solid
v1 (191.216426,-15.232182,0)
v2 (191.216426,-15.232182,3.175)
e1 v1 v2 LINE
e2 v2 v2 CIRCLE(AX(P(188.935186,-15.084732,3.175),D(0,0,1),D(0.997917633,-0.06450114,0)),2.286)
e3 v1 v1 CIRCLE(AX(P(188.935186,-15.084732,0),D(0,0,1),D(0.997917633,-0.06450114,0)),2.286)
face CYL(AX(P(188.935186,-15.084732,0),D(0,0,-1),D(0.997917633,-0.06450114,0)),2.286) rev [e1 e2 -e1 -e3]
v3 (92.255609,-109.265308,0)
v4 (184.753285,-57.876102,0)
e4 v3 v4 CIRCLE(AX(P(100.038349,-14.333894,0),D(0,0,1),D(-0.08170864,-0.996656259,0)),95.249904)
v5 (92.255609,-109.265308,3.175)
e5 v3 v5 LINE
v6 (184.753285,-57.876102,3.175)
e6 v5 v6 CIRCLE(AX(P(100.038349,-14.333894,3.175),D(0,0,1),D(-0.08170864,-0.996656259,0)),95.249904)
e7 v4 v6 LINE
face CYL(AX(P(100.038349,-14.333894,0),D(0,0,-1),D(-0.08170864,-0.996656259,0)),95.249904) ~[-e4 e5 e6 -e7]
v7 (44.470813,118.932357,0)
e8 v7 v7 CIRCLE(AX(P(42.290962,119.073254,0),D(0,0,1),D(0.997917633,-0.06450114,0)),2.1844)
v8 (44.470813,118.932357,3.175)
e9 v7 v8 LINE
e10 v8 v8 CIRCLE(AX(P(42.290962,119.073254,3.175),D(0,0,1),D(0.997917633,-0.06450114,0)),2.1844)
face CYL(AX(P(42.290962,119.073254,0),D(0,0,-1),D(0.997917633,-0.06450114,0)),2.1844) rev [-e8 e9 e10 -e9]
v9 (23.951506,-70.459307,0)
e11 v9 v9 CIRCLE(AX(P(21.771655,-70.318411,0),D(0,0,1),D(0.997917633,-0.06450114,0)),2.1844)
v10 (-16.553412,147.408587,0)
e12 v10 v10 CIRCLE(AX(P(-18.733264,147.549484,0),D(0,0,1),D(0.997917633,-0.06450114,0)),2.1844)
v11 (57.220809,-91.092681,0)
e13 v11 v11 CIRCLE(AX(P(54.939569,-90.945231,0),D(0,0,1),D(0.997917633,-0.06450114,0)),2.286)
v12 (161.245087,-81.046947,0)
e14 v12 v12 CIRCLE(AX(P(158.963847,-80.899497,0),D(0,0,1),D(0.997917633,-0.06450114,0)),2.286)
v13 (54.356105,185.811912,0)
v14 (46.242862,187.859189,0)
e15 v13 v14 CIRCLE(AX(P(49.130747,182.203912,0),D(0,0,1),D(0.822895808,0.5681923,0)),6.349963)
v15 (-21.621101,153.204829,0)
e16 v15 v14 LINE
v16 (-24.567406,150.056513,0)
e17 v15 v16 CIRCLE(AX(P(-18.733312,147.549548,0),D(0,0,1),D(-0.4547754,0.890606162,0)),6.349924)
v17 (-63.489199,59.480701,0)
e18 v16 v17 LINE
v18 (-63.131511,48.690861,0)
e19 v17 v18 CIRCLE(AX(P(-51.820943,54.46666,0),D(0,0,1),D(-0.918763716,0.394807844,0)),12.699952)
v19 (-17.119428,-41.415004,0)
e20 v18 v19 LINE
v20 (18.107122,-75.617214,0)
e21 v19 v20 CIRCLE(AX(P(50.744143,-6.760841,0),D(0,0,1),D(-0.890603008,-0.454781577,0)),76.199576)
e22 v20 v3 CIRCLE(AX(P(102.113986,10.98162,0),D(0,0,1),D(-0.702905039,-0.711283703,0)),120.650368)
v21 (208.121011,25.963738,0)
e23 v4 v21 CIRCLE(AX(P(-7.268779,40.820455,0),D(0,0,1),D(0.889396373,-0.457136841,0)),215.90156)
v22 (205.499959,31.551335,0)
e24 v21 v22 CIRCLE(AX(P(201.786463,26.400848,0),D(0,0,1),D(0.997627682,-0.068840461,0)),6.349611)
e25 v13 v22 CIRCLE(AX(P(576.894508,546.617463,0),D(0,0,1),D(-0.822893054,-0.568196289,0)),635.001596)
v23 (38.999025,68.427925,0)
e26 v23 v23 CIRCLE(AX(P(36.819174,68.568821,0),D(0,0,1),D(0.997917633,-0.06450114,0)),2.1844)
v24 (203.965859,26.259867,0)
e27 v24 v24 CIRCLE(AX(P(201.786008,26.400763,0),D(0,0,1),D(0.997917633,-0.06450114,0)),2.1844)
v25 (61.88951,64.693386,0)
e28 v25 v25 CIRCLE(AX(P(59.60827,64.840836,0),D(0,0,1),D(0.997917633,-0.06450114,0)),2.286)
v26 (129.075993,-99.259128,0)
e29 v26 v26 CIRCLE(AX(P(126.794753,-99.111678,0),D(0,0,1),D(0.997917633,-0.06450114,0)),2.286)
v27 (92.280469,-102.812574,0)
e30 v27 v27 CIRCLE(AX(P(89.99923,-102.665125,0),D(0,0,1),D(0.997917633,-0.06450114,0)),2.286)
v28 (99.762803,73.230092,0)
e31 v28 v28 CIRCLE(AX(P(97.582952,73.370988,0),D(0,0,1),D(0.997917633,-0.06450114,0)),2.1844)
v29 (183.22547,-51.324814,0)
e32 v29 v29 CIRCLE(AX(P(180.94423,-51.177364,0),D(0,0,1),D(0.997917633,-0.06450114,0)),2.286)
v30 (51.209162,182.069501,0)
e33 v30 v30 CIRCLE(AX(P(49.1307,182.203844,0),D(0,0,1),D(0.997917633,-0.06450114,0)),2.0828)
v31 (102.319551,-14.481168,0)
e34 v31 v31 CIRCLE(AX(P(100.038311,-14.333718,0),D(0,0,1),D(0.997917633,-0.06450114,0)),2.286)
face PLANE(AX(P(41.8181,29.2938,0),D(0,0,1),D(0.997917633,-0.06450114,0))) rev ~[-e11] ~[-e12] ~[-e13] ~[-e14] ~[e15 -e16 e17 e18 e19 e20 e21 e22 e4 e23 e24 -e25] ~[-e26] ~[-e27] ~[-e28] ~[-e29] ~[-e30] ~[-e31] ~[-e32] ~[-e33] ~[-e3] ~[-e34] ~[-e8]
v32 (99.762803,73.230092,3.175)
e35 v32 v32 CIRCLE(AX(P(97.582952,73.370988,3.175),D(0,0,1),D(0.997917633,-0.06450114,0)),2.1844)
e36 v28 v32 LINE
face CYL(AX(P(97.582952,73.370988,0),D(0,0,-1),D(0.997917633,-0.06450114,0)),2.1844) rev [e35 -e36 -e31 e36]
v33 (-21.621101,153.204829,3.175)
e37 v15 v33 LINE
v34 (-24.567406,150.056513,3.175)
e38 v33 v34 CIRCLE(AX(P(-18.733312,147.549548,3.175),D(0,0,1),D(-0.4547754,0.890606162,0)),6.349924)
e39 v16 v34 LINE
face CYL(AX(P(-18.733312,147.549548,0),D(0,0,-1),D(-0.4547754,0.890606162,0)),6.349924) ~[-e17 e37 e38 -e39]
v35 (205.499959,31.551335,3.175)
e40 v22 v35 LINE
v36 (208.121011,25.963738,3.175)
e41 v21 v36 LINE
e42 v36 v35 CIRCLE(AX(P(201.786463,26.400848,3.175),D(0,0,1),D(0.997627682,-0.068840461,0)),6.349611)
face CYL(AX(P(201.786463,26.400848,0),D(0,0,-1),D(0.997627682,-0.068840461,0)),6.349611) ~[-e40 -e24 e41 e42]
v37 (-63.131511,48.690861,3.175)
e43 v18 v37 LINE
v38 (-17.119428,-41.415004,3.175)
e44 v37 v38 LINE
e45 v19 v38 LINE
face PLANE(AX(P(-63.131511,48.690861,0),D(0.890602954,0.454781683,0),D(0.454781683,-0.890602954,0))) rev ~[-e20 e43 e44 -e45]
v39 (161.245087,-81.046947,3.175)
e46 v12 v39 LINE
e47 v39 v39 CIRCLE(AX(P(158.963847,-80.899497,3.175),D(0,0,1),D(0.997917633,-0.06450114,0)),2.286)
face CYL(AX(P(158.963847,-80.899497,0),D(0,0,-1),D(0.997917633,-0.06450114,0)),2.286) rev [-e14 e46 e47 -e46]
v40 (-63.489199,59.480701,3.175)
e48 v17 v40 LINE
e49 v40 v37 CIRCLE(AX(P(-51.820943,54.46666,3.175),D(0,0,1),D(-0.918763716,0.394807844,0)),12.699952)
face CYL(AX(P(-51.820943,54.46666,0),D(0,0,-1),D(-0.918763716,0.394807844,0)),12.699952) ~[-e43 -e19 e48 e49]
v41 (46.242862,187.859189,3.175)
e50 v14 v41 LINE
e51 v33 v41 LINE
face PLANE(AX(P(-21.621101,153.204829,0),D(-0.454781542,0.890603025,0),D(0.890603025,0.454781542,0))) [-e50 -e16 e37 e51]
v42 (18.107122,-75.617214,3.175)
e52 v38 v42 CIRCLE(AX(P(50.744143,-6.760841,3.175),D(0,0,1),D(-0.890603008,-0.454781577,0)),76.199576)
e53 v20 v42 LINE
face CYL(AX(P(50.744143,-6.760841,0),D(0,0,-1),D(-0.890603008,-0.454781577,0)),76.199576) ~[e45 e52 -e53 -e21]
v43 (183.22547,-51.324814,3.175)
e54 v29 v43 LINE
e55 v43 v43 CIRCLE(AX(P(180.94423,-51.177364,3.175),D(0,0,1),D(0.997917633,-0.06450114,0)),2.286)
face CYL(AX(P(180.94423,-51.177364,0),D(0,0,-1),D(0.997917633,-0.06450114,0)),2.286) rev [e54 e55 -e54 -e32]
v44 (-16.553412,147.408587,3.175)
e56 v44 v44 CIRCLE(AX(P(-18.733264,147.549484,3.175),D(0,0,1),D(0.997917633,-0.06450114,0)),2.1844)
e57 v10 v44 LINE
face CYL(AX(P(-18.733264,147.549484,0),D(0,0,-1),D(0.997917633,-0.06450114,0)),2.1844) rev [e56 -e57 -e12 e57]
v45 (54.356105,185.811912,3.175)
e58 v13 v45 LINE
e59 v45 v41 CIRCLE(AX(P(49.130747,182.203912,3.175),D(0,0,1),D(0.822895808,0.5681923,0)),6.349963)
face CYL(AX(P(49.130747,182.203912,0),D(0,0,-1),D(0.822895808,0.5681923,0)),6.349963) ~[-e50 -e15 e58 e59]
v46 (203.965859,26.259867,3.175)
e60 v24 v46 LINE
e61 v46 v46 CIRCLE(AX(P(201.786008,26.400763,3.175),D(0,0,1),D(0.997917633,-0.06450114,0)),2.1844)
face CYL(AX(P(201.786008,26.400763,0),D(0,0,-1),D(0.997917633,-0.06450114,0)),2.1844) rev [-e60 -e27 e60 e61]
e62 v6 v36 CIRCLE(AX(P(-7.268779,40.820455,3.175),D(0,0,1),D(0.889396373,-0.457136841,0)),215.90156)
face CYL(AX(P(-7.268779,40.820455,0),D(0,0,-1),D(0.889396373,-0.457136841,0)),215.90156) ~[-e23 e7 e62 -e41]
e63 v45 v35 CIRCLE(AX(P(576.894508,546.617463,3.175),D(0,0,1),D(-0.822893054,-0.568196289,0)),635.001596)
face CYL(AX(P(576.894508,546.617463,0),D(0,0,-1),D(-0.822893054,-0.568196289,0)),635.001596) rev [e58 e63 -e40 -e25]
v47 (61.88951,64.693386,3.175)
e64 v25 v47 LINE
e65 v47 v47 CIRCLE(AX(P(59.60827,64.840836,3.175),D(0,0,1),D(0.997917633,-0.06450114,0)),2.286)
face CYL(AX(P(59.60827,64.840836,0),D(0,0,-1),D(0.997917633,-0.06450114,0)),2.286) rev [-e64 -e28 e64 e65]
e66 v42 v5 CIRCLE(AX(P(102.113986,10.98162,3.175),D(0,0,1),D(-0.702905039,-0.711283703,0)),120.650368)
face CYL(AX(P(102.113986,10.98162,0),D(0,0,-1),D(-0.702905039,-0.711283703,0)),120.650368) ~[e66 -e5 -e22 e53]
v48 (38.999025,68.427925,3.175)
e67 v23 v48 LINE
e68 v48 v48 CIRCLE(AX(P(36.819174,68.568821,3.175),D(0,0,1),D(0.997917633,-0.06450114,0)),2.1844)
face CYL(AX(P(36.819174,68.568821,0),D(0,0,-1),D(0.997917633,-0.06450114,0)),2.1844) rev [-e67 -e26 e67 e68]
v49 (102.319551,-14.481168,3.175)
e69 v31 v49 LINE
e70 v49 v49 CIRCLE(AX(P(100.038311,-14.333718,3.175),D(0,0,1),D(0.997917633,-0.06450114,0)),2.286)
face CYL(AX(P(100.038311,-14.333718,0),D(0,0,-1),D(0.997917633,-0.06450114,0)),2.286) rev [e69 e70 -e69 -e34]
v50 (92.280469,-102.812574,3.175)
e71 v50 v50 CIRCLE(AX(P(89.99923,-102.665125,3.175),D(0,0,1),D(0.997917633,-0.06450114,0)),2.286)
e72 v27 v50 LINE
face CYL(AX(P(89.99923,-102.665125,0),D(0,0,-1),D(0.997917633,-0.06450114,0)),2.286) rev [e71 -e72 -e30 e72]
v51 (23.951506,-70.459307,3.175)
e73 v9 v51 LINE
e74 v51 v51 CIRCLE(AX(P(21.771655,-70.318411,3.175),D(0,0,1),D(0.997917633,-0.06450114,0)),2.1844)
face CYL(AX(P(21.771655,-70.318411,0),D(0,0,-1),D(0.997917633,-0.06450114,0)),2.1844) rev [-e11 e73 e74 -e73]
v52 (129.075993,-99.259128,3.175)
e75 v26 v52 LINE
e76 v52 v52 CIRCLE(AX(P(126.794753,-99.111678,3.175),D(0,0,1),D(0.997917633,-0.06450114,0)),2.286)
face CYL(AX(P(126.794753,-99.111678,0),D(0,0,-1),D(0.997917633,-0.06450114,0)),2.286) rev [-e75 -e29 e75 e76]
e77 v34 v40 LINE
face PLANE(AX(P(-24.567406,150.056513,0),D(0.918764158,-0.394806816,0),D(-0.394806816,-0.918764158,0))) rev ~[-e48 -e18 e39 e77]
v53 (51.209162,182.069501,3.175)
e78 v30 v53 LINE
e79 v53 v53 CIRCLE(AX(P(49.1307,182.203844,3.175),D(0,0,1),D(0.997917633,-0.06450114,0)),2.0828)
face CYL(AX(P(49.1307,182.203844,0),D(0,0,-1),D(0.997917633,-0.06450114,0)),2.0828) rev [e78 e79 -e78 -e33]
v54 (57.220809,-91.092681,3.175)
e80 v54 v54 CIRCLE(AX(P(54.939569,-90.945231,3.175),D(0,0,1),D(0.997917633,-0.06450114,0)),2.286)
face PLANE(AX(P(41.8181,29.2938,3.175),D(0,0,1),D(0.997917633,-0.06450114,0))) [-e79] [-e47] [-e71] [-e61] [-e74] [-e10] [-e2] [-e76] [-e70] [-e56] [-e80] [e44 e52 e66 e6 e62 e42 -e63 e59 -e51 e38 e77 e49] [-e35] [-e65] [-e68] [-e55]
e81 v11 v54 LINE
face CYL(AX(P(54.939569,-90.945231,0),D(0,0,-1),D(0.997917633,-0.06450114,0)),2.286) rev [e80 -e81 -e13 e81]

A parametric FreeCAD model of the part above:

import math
import FreeCAD as App
import Part
import Sketcher

V = App.Vector
Q = App.Units.Quantity

doc = App.newDocument("Part")
body = doc.addObject("PartDesign::Body", "Body")

# Sketch on XY plane
sketch1 = body.newObject("Sketcher::SketchObject", "Sketch")
sketch1.AttachmentSupport = (doc.getObject("XY_Plane"), [""])
sketch1.MapMode = "FlatFace"
sketch1.addGeometry([
    Part.LineSegment(V(46.242862, 187.859189, 0), V(-21.621101, 153.204829, 0)),  # 0
    Part.ArcOfCircle(Part.Circle(V(-18.733264, 147.549484, 0), V(0, 0, 1), 6.350003), math.radians(117.050608), math.radians(156.745988)),  # 1
    Part.LineSegment(V(-24.567406, 150.056513, 0), V(-63.489199, 59.480701, 0)),  # 2
    Part.ArcOfCircle(Part.Circle(V(-51.820814, 54.466636, 0), V(0, 0, 1), 12.700081), math.radians(156.746139), math.radians(207.050996)),  # 3
    Part.LineSegment(V(-63.131511, 48.690861, 0), V(-17.119428, -41.415004, 0)),  # 4
    Part.ArcOfCircle(Part.Circle(V(50.744542, -6.760544, 0), V(0, 0, 1), 76.200066), math.radians(-152.949056), math.radians(-115.360516)),  # 5
    Part.ArcOfCircle(Part.Circle(V(102.113782, 10.981326, 0), V(0, 0, 1), 120.650016), math.radians(-134.129614), math.radians(-94.686795)),  # 6
    Part.ArcOfCircle(Part.Circle(V(100.038311, -14.333718, 0), V(0, 0, 1), 95.250002), math.radians(-94.686754), math.radians(-27.202568)),  # 7
    Part.ArcOfCircle(Part.Circle(V(-7.268779, 40.820455, 0), V(0, 0, 1), 215.90156), math.radians(-27.202507), math.radians(-3.945782)),  # 8
    Part.ArcOfCircle(Part.Circle(V(201.786008, 26.400763, 0), V(0, 0, 1), 6.350028), math.radians(-3.94634), math.radians(54.205545)),  # 9
    Part.ArcOfCircle(Part.Circle(V(576.894508, 546.617462, 0), V(0, 0, 1), 635.001596), math.radians(-145.375457), math.radians(-125.793936)),  # 10
    Part.ArcOfCircle(Part.Circle(V(49.1307, 182.203844, 0), V(0, 0, 1), 6.350041), math.radians(34.62453), math.radians(117.050608)),  # 11
    Part.Circle(V(21.771655, -70.318411, 0), V(0, 0, 1), 2.1844),  # 12
    Part.Circle(V(42.290962, 119.073254, 0), V(0, 0, 1), 2.1844),  # 13
    Part.Circle(V(49.1307, 182.203844, 0), V(0, 0, 1), 2.0828),  # 14
    Part.Circle(V(97.582952, 73.370988, 0), V(0, 0, 1), 2.1844),  # 15
    Part.Circle(V(54.939569, -90.945231, 0), V(0, 0, 1), 2.286),  # 16
    Part.Circle(V(89.99923, -102.665125, 0), V(0, 0, 1), 2.286),  # 17
    Part.Circle(V(126.794753, -99.111678, 0), V(0, 0, 1), 2.286),  # 18
    Part.Circle(V(158.963847, -80.899497, 0), V(0, 0, 1), 2.286),  # 19
    Part.Circle(V(180.94423, -51.177364, 0), V(0, 0, 1), 2.286),  # 20
    Part.Circle(V(100.038311, -14.333718, 0), V(0, 0, 1), 2.286),  # 21
    Part.Circle(V(188.935186, -15.084732, 0), V(0, 0, 1), 2.286),  # 22
    Part.Circle(V(201.786008, 26.400763, 0), V(0, 0, 1), 2.1844),  # 23
    Part.Circle(V(36.819174, 68.568821, 0), V(0, 0, 1), 2.1844),  # 24
    Part.Circle(V(59.60827, 64.840836, 0), V(0, 0, 1), 2.286),  # 25
    Part.Circle(V(-18.733264, 147.549484, 0), V(0, 0, 1), 2.1844),  # 26
], False)
sketch1.addConstraint([
    Sketcher.Constraint("Coincident", 0, 2, 1, 1),
    Sketcher.Constraint("Coincident", 1, 2, 2, 1),
    Sketcher.Constraint("Coincident", 2, 2, 3, 1),
    Sketcher.Constraint("Coincident", 3, 2, 4, 1),
    Sketcher.Constraint("Coincident", 4, 2, 5, 1),
    Sketcher.Constraint("Coincident", 5, 2, 6, 1),
    Sketcher.Constraint("Coincident", 6, 2, 7, 1),
    Sketcher.Constraint("Coincident", 7, 2, 8, 1),
    Sketcher.Constraint("Coincident", 8, 2, 9, 1),
    Sketcher.Constraint("Coincident", 9, 2, 10, 2),
    Sketcher.Constraint("Coincident", 10, 1, 11, 1),
    Sketcher.Constraint("Coincident", 11, 2, 0, 1),
    Sketcher.Constraint("Coincident", 14, 3, 11, 3),
    Sketcher.Constraint("Coincident", 21, 3, 7, 3),
    Sketcher.Constraint("Coincident", 23, 3, 9, 3),
    Sketcher.Constraint("Coincident", 26, 3, 1, 3),
    Sketcher.Constraint("Radius", 5, Q("3 in")),
    Sketcher.Constraint("Radius", 3, Q("0.5 in")),
    Sketcher.Constraint("Diameter", 16, Q("0.18 in")),
    Sketcher.Constraint("Diameter", 17, Q("0.18 in")),
    Sketcher.Constraint("Diameter", 18, Q("0.18 in")),
    Sketcher.Constraint("Diameter", 19, Q("0.18 in")),
    Sketcher.Constraint("Diameter", 20, Q("0.18 in")),
    Sketcher.Constraint("Diameter", 21, Q("0.18 in")),
    Sketcher.Constraint("Diameter", 22, Q("0.18 in")),
    Sketcher.Constraint("Diameter", 25, Q("0.18 in")),
    Sketcher.Constraint("Radius", 1, Q("0.25 in")),
    Sketcher.Constraint("Radius", 6, Q("4.75 in")),
    Sketcher.Constraint("Radius", 9, Q("0.25 in")),
    Sketcher.Constraint("Radius", 11, Q("0.25 in")),
    Sketcher.Constraint("Distance", 0, Q("3 in")),
    Sketcher.Constraint("Radius", 7, Q("3.75 in")),
    Sketcher.Constraint("Diameter", 12, Q("0.172 in")),
    Sketcher.Constraint("Diameter", 13, Q("0.172 in")),
    Sketcher.Constraint("Diameter", 14, Q("0.164 in")),
    Sketcher.Constraint("Diameter", 15, Q("0.172 in")),
    Sketcher.Constraint("Diameter", 23, Q("0.172 in")),
    Sketcher.Constraint("Diameter", 24, Q("0.172 in")),
    Sketcher.Constraint("Diameter", 26, Q("0.172 in")),
    Sketcher.Constraint("DistanceX", -1, 1, 10, 1, Q("2.14 in")),
    Sketcher.Constraint("Radius", 8, 215.9016),
    Sketcher.Constraint("Radius", 10, 635.0016),
    Sketcher.Constraint("DistanceY", 16, 3, 4, 2, Q("1.95 in")),
    Sketcher.Constraint("DistanceX", 7, 2, 8, 2, Q("0.92 in")),
    Sketcher.Constraint("DistanceX", -1, 1, 13, 3, Q("1.665 in")),
    Sketcher.Constraint("DistanceX", 4, 2, -1, 1, Q("0.674 in")),
    Sketcher.Constraint("DistanceX", 3, 3, 5, 3, Q("4.038 in")),
    Sketcher.Constraint("DistanceX", 8, 3, 5, 3, Q("2.284 in")),
    Sketcher.Constraint("DistanceX", 1, 2, 0, 2, Q("0.116 in")),
    Sketcher.Constraint("DistanceX", 3, 3, -1, 1, Q("2.0402 in")),
    Sketcher.Constraint("DistanceY", -1, 1, 8, 3, Q("1.6071 in")),
    Sketcher.Constraint("DistanceY", -1, 1, 9, 3, Q("1.0394 in")),
    Sketcher.Constraint("DistanceX", -1, 1, 20, 3, Q("7.1238 in")),
    Sketcher.Constraint("DistanceX", -1, 1, 22, 3, Q("7.4384 in")),
    Sketcher.Constraint("DistanceY", -1, 1, 25, 3, Q("2.5528 in")),
    Sketcher.Constraint("DistanceX", 3, 2, -1, 1, Q("2.4855 in")),
    Sketcher.Constraint("DistanceY", 4, 2, -1, 1, Q("1.6305 in")),
    Sketcher.Constraint("DistanceX", -1, 1, 6, 2, Q("3.6321 in")),
    Sketcher.Constraint("DistanceY", -1, 1, 8, 2, Q("1.0222 in")),
    Sketcher.Constraint("DistanceY", 5, 3, 1, 3, Q("6.0752 in")),
    Sketcher.Constraint("DistanceX", 5, 3, 6, 3, Q("2.0224 in")),
    Sketcher.Constraint("DistanceY", 5, 3, 6, 3, Q("0.6985 in")),
    Sketcher.Constraint("DistanceY", 7, 3, 10, 3, Q("22.0847 in")),
    Sketcher.Constraint("DistanceX", 1, 3, 11, 3, Q("2.6718 in")),
    Sketcher.Constraint("DistanceY", 12, 3, 3, 3, Q("4.9128 in")),
    Sketcher.Constraint("DistanceY", 13, 3, 1, 3, Q("1.1211 in")),
    Sketcher.Constraint("DistanceY", 15, 3, 13, 3, Q("1.7993 in")),
    Sketcher.Constraint("DistanceX", 16, 3, 17, 3, Q("1.3803 in")),
    Sketcher.Constraint("DistanceY", 17, 3, 12, 3, Q("1.2735 in")),
    Sketcher.Constraint("DistanceY", 17, 3, 18, 3, Q("0.1399 in")),
    Sketcher.Constraint("DistanceX", 7, 3, 18, 3, Q("1.0534 in")),
    Sketcher.Constraint("DistanceX", 18, 3, 19, 3, Q("1.2665 in")),
    Sketcher.Constraint("DistanceY", 19, 3, 7, 3, Q("2.6207 in")),
    Sketcher.Constraint("DistanceY", 20, 3, 6, 3, Q("2.4472 in")),
    Sketcher.Constraint("DistanceX", 24, 3, 25, 3, Q("0.8972 in")),
    Sketcher.Constraint("DistanceX", 26, 3, 24, 3, Q("2.1871 in")),
    Sketcher.Constraint("DistanceX", 0, 2, 1, 3, Q("0.1137 in")),
    Sketcher.Constraint("DistanceY", 0, 2, 11, 3, Q("1.1417 in")),
    Sketcher.Constraint("DistanceY", 3, 3, 2, 2, Q("0.1974 in")),
    Sketcher.Constraint("DistanceY", 3, 2, 24, 3, Q("0.7826 in")),
    Sketcher.Constraint("DistanceX", 5, 2, 16, 3, Q("1.4501 in")),
    Sketcher.Constraint("DistanceY", 7, 2, 22, 3, Q("1.6847 in")),
    Sketcher.Constraint("DistanceX", 9, 2, 8, 2, Q("0.1032 in")),
    Sketcher.Constraint("Distance", 2, 98.5844),
    Sketcher.Constraint("DistanceX", -1, 1, 12, 3, 21.7717),
    Sketcher.Constraint("DistanceX", -1, 1, 15, 3, 97.583),
])
pad1 = body.newObject("PartDesign::Pad", "Pad")
pad1.Profile = sketch1
pad1.Length = Q("0.125 in")

doc.recompute()
